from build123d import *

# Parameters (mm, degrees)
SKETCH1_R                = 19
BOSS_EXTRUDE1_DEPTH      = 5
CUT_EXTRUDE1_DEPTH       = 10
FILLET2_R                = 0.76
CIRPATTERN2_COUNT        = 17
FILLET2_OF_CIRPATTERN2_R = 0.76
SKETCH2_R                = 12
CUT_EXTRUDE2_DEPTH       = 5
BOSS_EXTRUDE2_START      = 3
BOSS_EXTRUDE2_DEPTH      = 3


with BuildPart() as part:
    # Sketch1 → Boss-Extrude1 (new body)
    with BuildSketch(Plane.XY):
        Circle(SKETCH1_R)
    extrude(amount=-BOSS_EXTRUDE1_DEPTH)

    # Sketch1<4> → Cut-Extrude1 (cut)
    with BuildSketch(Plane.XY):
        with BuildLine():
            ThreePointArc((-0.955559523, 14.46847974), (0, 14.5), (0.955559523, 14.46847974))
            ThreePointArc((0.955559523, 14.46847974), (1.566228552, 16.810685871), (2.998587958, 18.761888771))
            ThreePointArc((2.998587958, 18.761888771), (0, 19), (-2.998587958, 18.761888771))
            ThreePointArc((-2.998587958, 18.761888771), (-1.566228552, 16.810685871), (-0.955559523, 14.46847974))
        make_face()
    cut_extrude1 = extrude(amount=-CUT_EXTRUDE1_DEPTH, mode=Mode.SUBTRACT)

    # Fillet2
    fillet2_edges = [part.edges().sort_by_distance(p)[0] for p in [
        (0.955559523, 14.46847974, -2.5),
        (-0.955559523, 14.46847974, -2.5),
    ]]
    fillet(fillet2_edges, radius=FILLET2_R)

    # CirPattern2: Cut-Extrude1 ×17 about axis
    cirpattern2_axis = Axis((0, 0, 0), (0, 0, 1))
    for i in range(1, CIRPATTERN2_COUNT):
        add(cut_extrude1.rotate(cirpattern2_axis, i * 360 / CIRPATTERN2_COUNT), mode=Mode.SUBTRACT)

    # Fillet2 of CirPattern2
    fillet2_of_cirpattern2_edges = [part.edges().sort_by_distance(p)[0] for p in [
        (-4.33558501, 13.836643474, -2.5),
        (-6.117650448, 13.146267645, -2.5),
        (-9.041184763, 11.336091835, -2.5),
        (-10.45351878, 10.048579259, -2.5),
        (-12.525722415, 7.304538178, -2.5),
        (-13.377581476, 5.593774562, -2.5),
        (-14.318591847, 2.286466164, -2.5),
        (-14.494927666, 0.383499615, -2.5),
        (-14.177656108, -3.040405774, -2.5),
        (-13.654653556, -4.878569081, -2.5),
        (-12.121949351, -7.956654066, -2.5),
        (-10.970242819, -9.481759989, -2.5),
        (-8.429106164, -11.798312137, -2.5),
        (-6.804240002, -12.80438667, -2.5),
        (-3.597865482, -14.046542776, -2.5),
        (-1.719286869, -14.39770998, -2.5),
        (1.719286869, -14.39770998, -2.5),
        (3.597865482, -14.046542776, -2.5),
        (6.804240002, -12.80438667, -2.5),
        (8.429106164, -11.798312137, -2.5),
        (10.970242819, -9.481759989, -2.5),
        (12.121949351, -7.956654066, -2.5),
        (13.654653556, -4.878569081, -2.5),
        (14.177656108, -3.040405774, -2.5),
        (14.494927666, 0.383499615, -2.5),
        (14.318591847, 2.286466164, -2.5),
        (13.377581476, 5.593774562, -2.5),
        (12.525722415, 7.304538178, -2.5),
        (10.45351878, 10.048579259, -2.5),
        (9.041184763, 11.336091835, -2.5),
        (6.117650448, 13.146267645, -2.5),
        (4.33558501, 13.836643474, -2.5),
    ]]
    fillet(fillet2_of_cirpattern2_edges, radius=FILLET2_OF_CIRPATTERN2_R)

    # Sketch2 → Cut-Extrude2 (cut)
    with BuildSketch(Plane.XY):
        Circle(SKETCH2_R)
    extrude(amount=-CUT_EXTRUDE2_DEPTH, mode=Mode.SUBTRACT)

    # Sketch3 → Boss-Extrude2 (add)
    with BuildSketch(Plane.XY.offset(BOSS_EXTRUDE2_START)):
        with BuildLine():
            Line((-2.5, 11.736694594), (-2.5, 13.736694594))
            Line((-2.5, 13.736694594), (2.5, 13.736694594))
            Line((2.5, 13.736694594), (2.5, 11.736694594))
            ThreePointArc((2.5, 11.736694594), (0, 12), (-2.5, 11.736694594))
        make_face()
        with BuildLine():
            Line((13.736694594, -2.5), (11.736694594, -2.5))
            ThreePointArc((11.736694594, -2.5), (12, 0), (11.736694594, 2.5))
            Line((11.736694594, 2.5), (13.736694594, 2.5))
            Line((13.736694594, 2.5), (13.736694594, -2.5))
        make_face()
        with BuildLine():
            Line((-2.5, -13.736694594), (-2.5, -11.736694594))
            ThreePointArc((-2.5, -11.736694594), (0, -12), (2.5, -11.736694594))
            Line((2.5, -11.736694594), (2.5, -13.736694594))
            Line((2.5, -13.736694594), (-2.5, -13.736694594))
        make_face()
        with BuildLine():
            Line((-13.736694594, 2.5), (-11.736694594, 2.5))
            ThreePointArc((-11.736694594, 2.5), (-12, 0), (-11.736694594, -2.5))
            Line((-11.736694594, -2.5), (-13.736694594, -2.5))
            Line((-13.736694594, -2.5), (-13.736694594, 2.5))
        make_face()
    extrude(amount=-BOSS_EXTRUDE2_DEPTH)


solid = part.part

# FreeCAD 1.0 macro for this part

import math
import FreeCAD as App
import Part
import Sketcher

V = App.Vector
Q = App.Units.Quantity


def edges_at(feature, points):
    """Names of the edges that pass closest to the given points."""
    edges = feature.Shape.Edges
    near = lambda p: min(range(len(edges)), key=lambda i: edges[i].distToShape(Part.Vertex(*p))[0])
    return sorted({f"Edge{near(p) + 1}" for p in points})

doc = App.newDocument("Part")
body = doc.addObject("PartDesign::Body", "Body")

# Sketch on XY plane
sketch1 = body.newObject("Sketcher::SketchObject", "Sketch")
sketch1.AttachmentSupport = (doc.getObject("XY_Plane"), [""])
sketch1.MapMode = "FlatFace"
sketch1.addGeometry(Part.Circle(V(0, 0, 0), V(0, 0, 1), 19), False)
sketch1.addConstraint(Sketcher.Constraint("Coincident", 0, 3, -1, 1))
sketch1.addConstraint(Sketcher.Constraint("Diameter", 0, Q("38 mm")))
pad1 = body.newObject("PartDesign::Pad", "Pad")
pad1.Profile = sketch1
pad1.Length = 5
pad1.Reversed = True

# Sketch on XY plane
sketch2 = body.newObject("Sketcher::SketchObject", "Sketch001")
sketch2.AttachmentSupport = (doc.getObject("XY_Plane"), [""])
sketch2.MapMode = "FlatFace"
sketch2.addGeometry(Part.ArcOfCircle(Part.Circle(V(0, 0, 0), V(0, 0, 1), 14.5), math.radians(86.22), math.radians(93.78)), False)
sketch2.addGeometry(Part.ArcOfCircle(Part.Circle(V(7.4, 14, 0), V(0, 0, 1), 6.4), math.radians(133), math.radians(176)), False)
sketch2.addGeometry(Part.ArcOfCircle(Part.Circle(V(0, 0, 0), V(0, 0, 1), 19), math.radians(80.92), math.radians(99.08)), False)
sketch2.addGeometry(Part.ArcOfCircle(Part.Circle(V(-7.4, 14, 0), V(0, 0, 1), 6.4), math.radians(4), math.radians(47)), False)
sketch2.addConstraint(Sketcher.Constraint("Coincident", 0, 1, 1, 2))
sketch2.addConstraint(Sketcher.Constraint("Coincident", 1, 1, 2, 1))
sketch2.addConstraint(Sketcher.Constraint("Coincident", 2, 2, 3, 2))
sketch2.addConstraint(Sketcher.Constraint("Coincident", 3, 1, 0, 2))
sketch2.addConstraint(Sketcher.Constraint("Coincident", 0, 3, -1, 1))
sketch2.addConstraint(Sketcher.Constraint("Coincident", 2, 3, -1, 1))
sketch2.addConstraint(Sketcher.Constraint("Equal", 1, 3))
sketch2.addConstraint(Sketcher.Constraint("Symmetric", 1, 3, 3, 3, -2))
sketch2.addConstraint(Sketcher.Constraint("Radius", 2, Q("19 mm")))
sketch2.addConstraint(Sketcher.Constraint("Radius", 0, Q("14.5 mm")))
sketch2.addConstraint(Sketcher.Constraint("Radius", 1, Q("6.438453 mm")))
sketch2.addConstraint(Sketcher.Constraint("DistanceY", 1, 3, 0, 1, Q("0.424298 mm")))
sketch2.addConstraint(Sketcher.Constraint("DistanceY", -1, 1, 1, 3, Q("14.044181 mm")))
pocket1 = body.newObject("PartDesign::Pocket", "Pocket")
pocket1.Profile = sketch2
pocket1.Length = 10
doc.recompute()

fillet = body.newObject("PartDesign::Fillet", "Fillet")
fillet.Base = (pocket1, edges_at(pocket1, [(0.956, 14.468, -2.5), (-0.956, 14.468, -2.5)]))
fillet.Radius = 0.76
doc.recompute()

polarpattern = body.newObject("PartDesign::PolarPattern", "PolarPattern")
polarpattern.Originals = [pocket1]
polarpattern.Axis = (doc.getObject("Z_Axis"), [""])
polarpattern.Angle = 360
polarpattern.Occurrences = 17
body.Tip = polarpattern
doc.recompute()

fillet2 = body.newObject("PartDesign::Fillet", "Fillet001")
fillet2.Base = (polarpattern, edges_at(polarpattern, [
    (-4.336, 13.837, -2.5),
    (-6.118, 13.146, -2.5),
    (-9.041, 11.336, -2.5),
    (-10.454, 10.049, -2.5),
    (-12.526, 7.305, -2.5),
    (-13.378, 5.594, -2.5),
    (-14.319, 2.286, -2.5),
    (-14.495, 0.383, -2.5),
    (-14.178, -3.04, -2.5),
    (-13.655, -4.879, -2.5),
    (-12.122, -7.957, -2.5),
    (-10.97, -9.482, -2.5),
    (-8.429, -11.798, -2.5),
    (-6.804, -12.804, -2.5),
    (-3.598, -14.047, -2.5),
    (-1.719, -14.398, -2.5),
    (1.719, -14.398, -2.5),
    (3.598, -14.047, -2.5),
    (6.804, -12.804, -2.5),
    (8.429, -11.798, -2.5),
    (10.97, -9.482, -2.5),
    (12.122, -7.957, -2.5),
    (13.655, -4.879, -2.5),
    (14.178, -3.04, -2.5),
    (14.495, 0.383, -2.5),
    (14.319, 2.286, -2.5),
    (13.378, 5.594, -2.5),
    (12.526, 7.305, -2.5),
    (10.454, 10.049, -2.5),
    (9.041, 11.336, -2.5),
    (6.118, 13.146, -2.5),
    (4.336, 13.837, -2.5),
]))
fillet2.Radius = 0.76

# Sketch on XY plane
sketch3 = body.newObject("Sketcher::SketchObject", "Sketch002")
sketch3.AttachmentSupport = (doc.getObject("XY_Plane"), [""])
sketch3.MapMode = "FlatFace"
sketch3.addGeometry(Part.Circle(V(0, 0, 0), V(0, 0, 1), 12), False)
sketch3.addConstraint(Sketcher.Constraint("Coincident", 0, 3, -1, 1))
sketch3.addConstraint(Sketcher.Constraint("Diameter", 0, Q("24 mm")))
pocket2 = body.newObject("PartDesign::Pocket", "Pocket001")
pocket2.Profile = sketch3
pocket2.Length = 5

# Sketch on XY plane
sketch4 = body.newObject("Sketcher::SketchObject", "Sketch003")
sketch4.AttachmentSupport = (doc.getObject("XY_Plane"), [""])
sketch4.MapMode = "FlatFace"
sketch4.AttachmentOffset = App.Placement(V(0, 0, 3), App.Rotation())
sketch4.addGeometry(Part.LineSegment(V(-2.5, 13.7, 0), V(-2.5, 11.7, 0)), False)
sketch4.addGeometry(Part.ArcOfCircle(Part.Circle(V(0, 0, 0), V(0, 0, 1), 12), math.radians(78), math.radians(102)), False)
sketch4.addGeometry(Part.LineSegment(V(2.5, 11.7, 0), V(2.5, 13.7, 0)), False)
sketch4.addGeometry(Part.LineSegment(V(2.5, 13.7, 0), V(-2.5, 13.7, 0)), False)
sketch4.addGeometry(Part.LineSegment(V(11.7, -2.5, 0), V(13.7, -2.5, 0)), False)
sketch4.addGeometry(Part.LineSegment(V(13.7, -2.5, 0), V(13.7, 2.5, 0)), False)
sketch4.addGeometry(Part.LineSegment(V(13.7, 2.5, 0), V(11.7, 2.5, 0)), False)
sketch4.addGeometry(Part.ArcOfCircle(Part.Circle(V(0, 0, 0), V(0, 0, 1), 12), math.radians(-12), math.radians(12)), False)
sketch4.addGeometry(Part.LineSegment(V(-2.5, -11.7, 0), V(-2.5, -13.7, 0)), False)
sketch4.addGeometry(Part.LineSegment(V(-2.5, -13.7, 0), V(2.5, -13.7, 0)), False)
sketch4.addGeometry(Part.LineSegment(V(2.5, -13.7, 0), V(2.5, -11.7, 0)), False)
sketch4.addGeometry(Part.ArcOfCircle(Part.Circle(V(0, 0, 0), V(0, 0, 1), 12), math.radians(-102), math.radians(-78)), False)
sketch4.addGeometry(Part.LineSegment(V(-11.7, 2.5, 0), V(-13.7, 2.5, 0)), False)
sketch4.addGeometry(Part.LineSegment(V(-13.7, 2.5, 0), V(-13.7, -2.5, 0)), False)
sketch4.addGeometry(Part.LineSegment(V(-13.7, -2.5, 0), V(-11.7, -2.5, 0)), False)
sketch4.addGeometry(Part.ArcOfCircle(Part.Circle(V(0, 0, 0), V(0, 0, 1), 12), math.radians(168), math.radians(192)), False)
sketch4.addConstraint(Sketcher.Constraint("Coincident", 0, 2, 1, 2))
sketch4.addConstraint(Sketcher.Constraint("Coincident", 1, 1, 2, 1))
sketch4.addConstraint(Sketcher.Constraint("Coincident", 2, 2, 3, 1))
sketch4.addConstraint(Sketcher.Constraint("Coincident", 3, 2, 0, 1))
sketch4.addConstraint(Sketcher.Constraint("Coincident", 4, 2, 5, 1))
sketch4.addConstraint(Sketcher.Constraint("Coincident", 5, 2, 6, 1))
sketch4.addConstraint(Sketcher.Constraint("Coincident", 6, 2, 7, 2))
sketch4.addConstraint(Sketcher.Constraint("Coincident", 7, 1, 4, 1))
sketch4.addConstraint(Sketcher.Constraint("Coincident", 8, 2, 9, 1))
sketch4.addConstraint(Sketcher.Constraint("Coincident", 9, 2, 10, 1))
sketch4.addConstraint(Sketcher.Constraint("Coincident", 10, 2, 11, 2))
sketch4.addConstraint(Sketcher.Constraint("Coincident", 11, 1, 8, 1))
sketch4.addConstraint(Sketcher.Constraint("Coincident", 12, 2, 13, 1))
sketch4.addConstraint(Sketcher.Constraint("Coincident", 13, 2, 14, 1))
sketch4.addConstraint(Sketcher.Constraint("Coincident", 14, 2, 15, 2))
sketch4.addConstraint(Sketcher.Constraint("Coincident", 15, 1, 12, 1))
sketch4.addConstraint(Sketcher.Constraint("Vertical", 0))
sketch4.addConstraint(Sketcher.Constraint("Vertical", 2))
sketch4.addConstraint(Sketcher.Constraint("Horizontal", 3))
sketch4.addConstraint(Sketcher.Constraint("Horizontal", 4))
sketch4.addConstraint(Sketcher.Constraint("Vertical", 5))
sketch4.addConstraint(Sketcher.Constraint("Horizontal", 6))
sketch4.addConstraint(Sketcher.Constraint("Vertical", 8))
sketch4.addConstraint(Sketcher.Constraint("Horizontal", 9))
sketch4.addConstraint(Sketcher.Constraint("Vertical", 10))
sketch4.addConstraint(Sketcher.Constraint("Horizontal", 12))
sketch4.addConstraint(Sketcher.Constraint("Vertical", 13))
sketch4.addConstraint(Sketcher.Constraint("Horizontal", 14))
sketch4.addConstraint(Sketcher.Constraint("Coincident", 1, 3, -1, 1))
sketch4.addConstraint(Sketcher.Constraint("Coincident", 7, 3, -1, 1))
sketch4.addConstraint(Sketcher.Constraint("Coincident", 11, 3, -1, 1))
sketch4.addConstraint(Sketcher.Constraint("Coincident", 15, 3, -1, 1))
sketch4.addConstraint(Sketcher.Constraint("Equal", 1, 7))
sketch4.addConstraint(Sketcher.Constraint("Equal", 7, 11))
sketch4.addConstraint(Sketcher.Constraint("Equal", 11, 15))
sketch4.addConstraint(Sketcher.Constraint("Symmetric", 2, 2, 8, 2, -1, 1))
sketch4.addConstraint(Sketcher.Constraint("Symmetric", 4, 2, 12, 2, -1, 1))
sketch4.addConstraint(Sketcher.Constraint("Horizontal", 0, 2, 1, 1))
sketch4.addConstraint(Sketcher.Constraint("Horizontal", 10, 2, 11, 1))
sketch4.addConstraint(Sketcher.Constraint("Horizontal", 6, 2, 12, 2))
sketch4.addConstraint(Sketcher.Constraint("Horizontal", 7, 1, 13, 2))
sketch4.addConstraint(Sketcher.Constraint("Equal", 14, 0))
sketch4.addConstraint(Sketcher.Constraint("Equal", 9, 5))
sketch4.addConstraint(Sketcher.Constraint("Radius", 1, Q("12 mm")))
sketch4.addConstraint(Sketcher.Constraint("DistanceX", 3, 2, 3, 1, Q("5 mm")))
sketch4.addConstraint(Sketcher.Constraint("DistanceX", 4, 1, 4, 2, Q("2 mm")))
pad2 = body.newObject("PartDesign::Pad", "Pad001")
pad2.Profile = sketch4
pad2.Length = 3
pad2.Reversed = True

doc.recompute()
